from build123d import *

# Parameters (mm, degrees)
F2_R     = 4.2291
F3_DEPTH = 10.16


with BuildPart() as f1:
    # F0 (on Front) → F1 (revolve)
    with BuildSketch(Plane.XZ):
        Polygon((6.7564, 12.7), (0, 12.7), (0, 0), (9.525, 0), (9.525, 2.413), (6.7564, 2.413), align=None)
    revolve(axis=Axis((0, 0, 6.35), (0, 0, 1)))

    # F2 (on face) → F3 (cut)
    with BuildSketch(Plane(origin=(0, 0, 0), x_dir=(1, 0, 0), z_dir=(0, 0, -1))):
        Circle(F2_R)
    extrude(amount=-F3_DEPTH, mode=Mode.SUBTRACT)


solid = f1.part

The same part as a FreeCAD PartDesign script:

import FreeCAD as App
import Part
import Sketcher
Q = App.Units.Quantity


def add_polygon(sketch, points):
    """Adds a closed chain of lines whose ends are joined by coincident constraints."""
    first, n = sketch.GeometryCount, len(points)
    for a, b in zip(points, points[1:] + points[:1]):
        sketch.addGeometry(Part.LineSegment(App.Vector(*a, 0), App.Vector(*b, 0)), False)
    for i in range(n):
        sketch.addConstraint(Sketcher.Constraint("Coincident", first + i, 2, first + (i + 1) % n, 1))

doc = App.newDocument("Part")
body = doc.addObject("PartDesign::Body", "Body")

sketch1 = doc.addObject("Sketcher::SketchObject", "Sketch")
body.addObject(sketch1)
sketch1.AttachmentSupport = (doc.XZ_Plane, [""])
sketch1.MapMode = "FlatFace"
add_polygon(sketch1, [(6.8, 12.7), (0, 12.7), (0, 0), (9.5, 0), (9.5, 2.4), (6.8, 2.4)])
sketch1.addConstraint(Sketcher.Constraint("Horizontal", 0))
sketch1.addConstraint(Sketcher.Constraint("Vertical", 1))
sketch1.addConstraint(Sketcher.Constraint("Horizontal", 2))
sketch1.addConstraint(Sketcher.Constraint("Vertical", 3))
sketch1.addConstraint(Sketcher.Constraint("Horizontal", 4))
sketch1.addConstraint(Sketcher.Constraint("Vertical", 5))
sketch1.addConstraint(Sketcher.Constraint("Coincident", 1, 2, -1, 1))
sketch1.addConstraint(Sketcher.Constraint("DistanceY", 1, 2, 1, 1, Q("0.5 in")))
sketch1.addConstraint(Sketcher.Constraint("DistanceX", 0, 2, 0, 1, Q("0.266 in")))
sketch1.addConstraint(Sketcher.Constraint("DistanceX", 2, 1, 2, 2, Q("0.375 in")))
sketch1.addConstraint(Sketcher.Constraint("DistanceY", 3, 1, 3, 2, Q("0.095 in")))
revolution = doc.addObject("PartDesign::Revolution", "Revolution")
body.addObject(revolution)
revolution.Profile = sketch1
revolution.ReferenceAxis = (sketch1, ["V_Axis"])
revolution.Angle = 360

sketch2 = doc.addObject("Sketcher::SketchObject", "Sketch001")
body.addObject(sketch2)
sketch2.AttachmentSupport = (doc.XY_Plane, [""])
sketch2.MapMode = "FlatFace"
sketch2.addGeometry(Part.Circle(App.Vector(0, 0, 0), App.Vector(0, 0, 1), 4.2), False)
sketch2.addConstraint(Sketcher.Constraint("Coincident", 0, 3, -1, 1))
sketch2.addConstraint(Sketcher.Constraint("Diameter", 0, Q("0.333 in")))
pocket1 = doc.addObject("PartDesign::Pocket", "Pocket")
body.addObject(pocket1)
pocket1.Profile = sketch2
pocket1.Length = Q("0.4 in")
pocket1.Reversed = True

doc.recompute()
